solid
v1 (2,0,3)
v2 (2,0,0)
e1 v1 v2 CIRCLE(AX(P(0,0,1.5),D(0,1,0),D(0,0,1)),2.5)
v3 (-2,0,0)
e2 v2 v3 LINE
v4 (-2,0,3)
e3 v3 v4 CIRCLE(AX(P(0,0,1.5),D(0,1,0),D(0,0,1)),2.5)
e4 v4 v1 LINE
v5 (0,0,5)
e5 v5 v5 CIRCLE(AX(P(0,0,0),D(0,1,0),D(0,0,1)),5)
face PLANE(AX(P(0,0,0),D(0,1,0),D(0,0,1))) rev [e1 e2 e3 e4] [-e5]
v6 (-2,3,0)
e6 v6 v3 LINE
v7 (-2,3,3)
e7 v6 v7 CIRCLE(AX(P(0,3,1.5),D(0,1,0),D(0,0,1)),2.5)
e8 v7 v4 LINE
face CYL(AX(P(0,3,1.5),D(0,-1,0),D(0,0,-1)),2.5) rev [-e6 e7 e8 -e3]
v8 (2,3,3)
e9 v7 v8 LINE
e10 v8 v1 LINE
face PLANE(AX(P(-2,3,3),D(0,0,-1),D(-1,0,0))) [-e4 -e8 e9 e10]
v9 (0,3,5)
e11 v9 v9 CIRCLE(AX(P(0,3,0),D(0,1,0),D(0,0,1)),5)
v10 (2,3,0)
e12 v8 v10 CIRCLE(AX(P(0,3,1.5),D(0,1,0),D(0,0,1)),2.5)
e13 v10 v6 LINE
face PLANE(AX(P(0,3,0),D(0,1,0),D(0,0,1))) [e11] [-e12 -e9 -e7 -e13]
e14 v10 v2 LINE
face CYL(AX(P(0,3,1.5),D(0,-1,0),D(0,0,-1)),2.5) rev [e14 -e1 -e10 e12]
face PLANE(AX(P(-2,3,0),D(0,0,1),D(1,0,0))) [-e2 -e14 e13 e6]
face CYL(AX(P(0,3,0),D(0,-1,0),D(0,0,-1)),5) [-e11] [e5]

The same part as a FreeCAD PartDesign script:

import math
import FreeCAD as App
import Part
import Sketcher
from FreeCAD import Vector

doc = App.newDocument("Part")
params = doc.addObject("Spreadsheet::Sheet", "Params")
for row, (alias, value) in enumerate([
    ("sketch1_diameter", "10 mm"),
    ("sketch1_radius", "2.5 mm"),
    ("sketch1_width", "4 mm"),
    ("pad1_length", "3 mm"),
], start=1):
    params.set(f"A{row}", alias)
    params.set(f"B{row}", "=" + value)
    params.setAlias(f"B{row}", alias)

body = doc.addObject("PartDesign::Body", "Body")

sketch1 = body.newObject("Sketcher::SketchObject", "Sketch")
sketch1.AttachmentSupport = (doc.getObject("XZ_Plane"), [""])
sketch1.MapMode = "FlatFace"
sketch1.addGeometry([
    Part.Circle(Vector(0, 0, 0), Vector(0, 0, 1), 5),
    Part.ArcOfCircle(Part.Circle(Vector(0, 1.5, 0), Vector(0, 0, 1), 2.5), math.radians(143.130102), math.radians(216.869898)),
    Part.LineSegment(Vector(-2, 0, 0), Vector(2, 0, 0)),
    Part.ArcOfCircle(Part.Circle(Vector(0, 1.5, 0), Vector(0, 0, 1), 2.5), math.radians(-36.869898), math.radians(36.869898)),
    Part.LineSegment(Vector(2, 3, 0), Vector(-2, 3, 0)),
], False)
sketch1.addConstraint([
    Sketcher.Constraint("Coincident", 1, 2, 2, 1),
    Sketcher.Constraint("Coincident", 2, 2, 3, 1),
    Sketcher.Constraint("Coincident", 3, 2, 4, 1),
    Sketcher.Constraint("Coincident", 4, 2, 1, 1),
    Sketcher.Constraint("Horizontal", 2),
    Sketcher.Constraint("Horizontal", 4),
    Sketcher.Constraint("Coincident", 0, 3, -1, 1),
    Sketcher.Constraint("Coincident", 3, 3, 1, 3),
    Sketcher.Constraint("Equal", 1, 3),
    Sketcher.Constraint("Symmetric", 1, 2, 2, 2, -1, 1),
    Sketcher.Constraint("Vertical", 2, 2, 3, 2),
    Sketcher.Constraint("Diameter", 0, 10.0),
    Sketcher.Constraint("Radius", 1, 2.5),
    Sketcher.Constraint("DistanceX", 2, 1, 2, 2, 4.0),
])
sketch1.setExpression("Constraints[11]", "Params.sketch1_diameter")
sketch1.setExpression("Constraints[12]", "Params.sketch1_radius")
sketch1.setExpression("Constraints[13]", "Params.sketch1_width")
pad1 = body.newObject("PartDesign::Pad", "Pad")
pad1.Profile = sketch1
pad1.setExpression("Length", "Params.pad1_length")
pad1.Reversed = True

doc.recompute()
